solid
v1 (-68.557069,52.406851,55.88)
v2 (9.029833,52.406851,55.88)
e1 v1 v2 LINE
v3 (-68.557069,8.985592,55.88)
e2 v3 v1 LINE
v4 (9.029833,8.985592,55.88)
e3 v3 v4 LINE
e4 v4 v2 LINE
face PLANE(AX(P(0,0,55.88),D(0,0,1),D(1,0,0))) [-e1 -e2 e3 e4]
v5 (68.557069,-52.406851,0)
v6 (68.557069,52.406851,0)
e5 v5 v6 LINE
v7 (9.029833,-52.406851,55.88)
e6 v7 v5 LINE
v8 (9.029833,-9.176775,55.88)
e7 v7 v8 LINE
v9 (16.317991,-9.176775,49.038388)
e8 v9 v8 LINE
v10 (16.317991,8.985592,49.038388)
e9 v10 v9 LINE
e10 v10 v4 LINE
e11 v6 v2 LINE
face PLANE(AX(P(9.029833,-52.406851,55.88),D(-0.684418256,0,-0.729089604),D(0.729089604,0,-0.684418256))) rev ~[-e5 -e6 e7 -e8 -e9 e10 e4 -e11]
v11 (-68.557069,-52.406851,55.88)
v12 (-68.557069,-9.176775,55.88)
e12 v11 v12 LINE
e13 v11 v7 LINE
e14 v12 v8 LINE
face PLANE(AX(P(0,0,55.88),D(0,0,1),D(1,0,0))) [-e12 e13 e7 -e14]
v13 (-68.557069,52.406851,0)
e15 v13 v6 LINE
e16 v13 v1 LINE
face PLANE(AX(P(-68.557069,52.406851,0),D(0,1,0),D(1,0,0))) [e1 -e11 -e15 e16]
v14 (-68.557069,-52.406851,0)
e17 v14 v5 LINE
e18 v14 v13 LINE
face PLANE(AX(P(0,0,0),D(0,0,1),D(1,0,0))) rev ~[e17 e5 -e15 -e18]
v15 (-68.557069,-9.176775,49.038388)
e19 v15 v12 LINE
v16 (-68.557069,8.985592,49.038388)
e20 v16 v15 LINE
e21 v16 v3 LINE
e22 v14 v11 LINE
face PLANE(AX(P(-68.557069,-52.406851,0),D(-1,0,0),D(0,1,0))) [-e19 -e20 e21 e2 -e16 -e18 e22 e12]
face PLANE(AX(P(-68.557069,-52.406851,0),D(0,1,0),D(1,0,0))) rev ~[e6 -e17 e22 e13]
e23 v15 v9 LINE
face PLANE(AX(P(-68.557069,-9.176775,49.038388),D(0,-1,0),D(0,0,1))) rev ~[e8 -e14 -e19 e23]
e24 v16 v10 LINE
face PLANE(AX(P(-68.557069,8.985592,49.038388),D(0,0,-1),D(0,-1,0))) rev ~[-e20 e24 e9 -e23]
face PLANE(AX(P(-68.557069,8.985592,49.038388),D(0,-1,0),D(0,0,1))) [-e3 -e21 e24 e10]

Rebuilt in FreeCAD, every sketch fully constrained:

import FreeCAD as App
import Part
import Sketcher
from FreeCAD import Vector
Q = App.Units.Quantity

doc = App.newDocument("Part")
body = doc.addObject("PartDesign::Body", "Body")

sketch1 = body.newObject("Sketcher::SketchObject", "Sketch")
sketch1.AttachmentSupport = (doc.getObject("XY_Plane"), [""])
sketch1.MapMode = "FlatFace"
sketch1.addGeometry([
    Part.LineSegment(Vector(-69, 52, 0), Vector(-69, -52, 0)),
    Part.LineSegment(Vector(-69, -52, 0), Vector(69, -52, 0)),
    Part.LineSegment(Vector(69, -52, 0), Vector(69, 52, 0)),
    Part.LineSegment(Vector(69, 52, 0), Vector(-69, 52, 0)),
], False)
sketch1.addConstraint([
    Sketcher.Constraint("Coincident", 0, 2, 1, 1),
    Sketcher.Constraint("Coincident", 1, 2, 2, 1),
    Sketcher.Constraint("Coincident", 2, 2, 3, 1),
    Sketcher.Constraint("Coincident", 3, 2, 0, 1),
    Sketcher.Constraint("Vertical", 0),
    Sketcher.Constraint("Horizontal", 1),
    Sketcher.Constraint("Vertical", 2),
    Sketcher.Constraint("Horizontal", 3),
    Sketcher.Constraint("Symmetric", 0, 2, 2, 2, -1, 1),
    Sketcher.Constraint("DistanceX", 1, 1, 1, 2, 137.114138),
    Sketcher.Constraint("DistanceY", 0, 2, 0, 1, 104.813702),
])
pad1 = body.newObject("PartDesign::Pad", "Pad")
pad1.Profile = sketch1
pad1.Length = Q("2.2 in")

sketch2 = body.newObject("Sketcher::SketchObject", "Sketch001")
sketch2.AttachmentSupport = (doc.getObject("XZ_Plane"), [""])
sketch2.MapMode = "FlatFace"
sketch2.AttachmentOffset = App.Placement(Vector(0, 0, 52.406851), App.Rotation())
sketch2.addGeometry([
    Part.LineSegment(Vector(69, 0, 0), Vector(69, 56, 0)),
    Part.LineSegment(Vector(69, 56, 0), Vector(9, 56, 0)),
    Part.LineSegment(Vector(9, 56, 0), Vector(69, 0, 0)),
], False)
sketch2.addConstraint([
    Sketcher.Constraint("Coincident", 0, 2, 1, 1),
    Sketcher.Constraint("Coincident", 1, 2, 2, 1),
    Sketcher.Constraint("Coincident", 2, 2, 0, 1),
    Sketcher.Constraint("Vertical", 0),
    Sketcher.Constraint("Horizontal", 1),
    Sketcher.Constraint("PointOnObject", 2, 2, -1),
    Sketcher.Constraint("DistanceY", 0, 1, 0, 2, Q("2.2 in")),
    Sketcher.Constraint("Distance", 2, 81.645981),
    Sketcher.Constraint("DistanceX", -1, 1, 0, 2, 68.557069),
])
pocket1 = body.newObject("PartDesign::Pocket", "Pocket")
pocket1.Profile = sketch2
pocket1.Type = "ThroughAll"

sketch3 = body.newObject("Sketcher::SketchObject", "Sketch002")
sketch3.AttachmentSupport = (doc.getObject("YZ_Plane"), [""])
sketch3.MapMode = "FlatFace"
sketch3.AttachmentOffset = App.Placement(Vector(0, 0, -68.557069), App.Rotation())
sketch3.addGeometry([
    Part.LineSegment(Vector(9, 56, 0), Vector(9, 49, 0)),
    Part.LineSegment(Vector(9, 49, 0), Vector(-9, 49, 0)),
    Part.LineSegment(Vector(-9, 49, 0), Vector(-9, 56, 0)),
    Part.LineSegment(Vector(-9, 56, 0), Vector(9, 56, 0)),
], False)
sketch3.addConstraint([
    Sketcher.Constraint("Coincident", 0, 2, 1, 1),
    Sketcher.Constraint("Coincident", 1, 2, 2, 1),
    Sketcher.Constraint("Coincident", 2, 2, 3, 1),
    Sketcher.Constraint("Coincident", 3, 2, 0, 1),
    Sketcher.Constraint("Vertical", 0),
    Sketcher.Constraint("Horizontal", 1),
    Sketcher.Constraint("Vertical", 2),
    Sketcher.Constraint("Horizontal", 3),
    Sketcher.Constraint("DistanceY", -1, 1, 2, 2, Q("2.2 in")),
    Sketcher.Constraint("DistanceX", 1, 2, 1, 1, 18.162367),
    Sketcher.Constraint("DistanceY", 0, 2, 0, 1, 6.841612),
    Sketcher.Constraint("DistanceX", -1, 1, 0, 2, 8.985592),
])
pocket2 = body.newObject("PartDesign::Pocket", "Pocket001")
pocket2.Profile = sketch3
pocket2.Type = "ThroughAll"
pocket2.Reversed = True

doc.recompute()
